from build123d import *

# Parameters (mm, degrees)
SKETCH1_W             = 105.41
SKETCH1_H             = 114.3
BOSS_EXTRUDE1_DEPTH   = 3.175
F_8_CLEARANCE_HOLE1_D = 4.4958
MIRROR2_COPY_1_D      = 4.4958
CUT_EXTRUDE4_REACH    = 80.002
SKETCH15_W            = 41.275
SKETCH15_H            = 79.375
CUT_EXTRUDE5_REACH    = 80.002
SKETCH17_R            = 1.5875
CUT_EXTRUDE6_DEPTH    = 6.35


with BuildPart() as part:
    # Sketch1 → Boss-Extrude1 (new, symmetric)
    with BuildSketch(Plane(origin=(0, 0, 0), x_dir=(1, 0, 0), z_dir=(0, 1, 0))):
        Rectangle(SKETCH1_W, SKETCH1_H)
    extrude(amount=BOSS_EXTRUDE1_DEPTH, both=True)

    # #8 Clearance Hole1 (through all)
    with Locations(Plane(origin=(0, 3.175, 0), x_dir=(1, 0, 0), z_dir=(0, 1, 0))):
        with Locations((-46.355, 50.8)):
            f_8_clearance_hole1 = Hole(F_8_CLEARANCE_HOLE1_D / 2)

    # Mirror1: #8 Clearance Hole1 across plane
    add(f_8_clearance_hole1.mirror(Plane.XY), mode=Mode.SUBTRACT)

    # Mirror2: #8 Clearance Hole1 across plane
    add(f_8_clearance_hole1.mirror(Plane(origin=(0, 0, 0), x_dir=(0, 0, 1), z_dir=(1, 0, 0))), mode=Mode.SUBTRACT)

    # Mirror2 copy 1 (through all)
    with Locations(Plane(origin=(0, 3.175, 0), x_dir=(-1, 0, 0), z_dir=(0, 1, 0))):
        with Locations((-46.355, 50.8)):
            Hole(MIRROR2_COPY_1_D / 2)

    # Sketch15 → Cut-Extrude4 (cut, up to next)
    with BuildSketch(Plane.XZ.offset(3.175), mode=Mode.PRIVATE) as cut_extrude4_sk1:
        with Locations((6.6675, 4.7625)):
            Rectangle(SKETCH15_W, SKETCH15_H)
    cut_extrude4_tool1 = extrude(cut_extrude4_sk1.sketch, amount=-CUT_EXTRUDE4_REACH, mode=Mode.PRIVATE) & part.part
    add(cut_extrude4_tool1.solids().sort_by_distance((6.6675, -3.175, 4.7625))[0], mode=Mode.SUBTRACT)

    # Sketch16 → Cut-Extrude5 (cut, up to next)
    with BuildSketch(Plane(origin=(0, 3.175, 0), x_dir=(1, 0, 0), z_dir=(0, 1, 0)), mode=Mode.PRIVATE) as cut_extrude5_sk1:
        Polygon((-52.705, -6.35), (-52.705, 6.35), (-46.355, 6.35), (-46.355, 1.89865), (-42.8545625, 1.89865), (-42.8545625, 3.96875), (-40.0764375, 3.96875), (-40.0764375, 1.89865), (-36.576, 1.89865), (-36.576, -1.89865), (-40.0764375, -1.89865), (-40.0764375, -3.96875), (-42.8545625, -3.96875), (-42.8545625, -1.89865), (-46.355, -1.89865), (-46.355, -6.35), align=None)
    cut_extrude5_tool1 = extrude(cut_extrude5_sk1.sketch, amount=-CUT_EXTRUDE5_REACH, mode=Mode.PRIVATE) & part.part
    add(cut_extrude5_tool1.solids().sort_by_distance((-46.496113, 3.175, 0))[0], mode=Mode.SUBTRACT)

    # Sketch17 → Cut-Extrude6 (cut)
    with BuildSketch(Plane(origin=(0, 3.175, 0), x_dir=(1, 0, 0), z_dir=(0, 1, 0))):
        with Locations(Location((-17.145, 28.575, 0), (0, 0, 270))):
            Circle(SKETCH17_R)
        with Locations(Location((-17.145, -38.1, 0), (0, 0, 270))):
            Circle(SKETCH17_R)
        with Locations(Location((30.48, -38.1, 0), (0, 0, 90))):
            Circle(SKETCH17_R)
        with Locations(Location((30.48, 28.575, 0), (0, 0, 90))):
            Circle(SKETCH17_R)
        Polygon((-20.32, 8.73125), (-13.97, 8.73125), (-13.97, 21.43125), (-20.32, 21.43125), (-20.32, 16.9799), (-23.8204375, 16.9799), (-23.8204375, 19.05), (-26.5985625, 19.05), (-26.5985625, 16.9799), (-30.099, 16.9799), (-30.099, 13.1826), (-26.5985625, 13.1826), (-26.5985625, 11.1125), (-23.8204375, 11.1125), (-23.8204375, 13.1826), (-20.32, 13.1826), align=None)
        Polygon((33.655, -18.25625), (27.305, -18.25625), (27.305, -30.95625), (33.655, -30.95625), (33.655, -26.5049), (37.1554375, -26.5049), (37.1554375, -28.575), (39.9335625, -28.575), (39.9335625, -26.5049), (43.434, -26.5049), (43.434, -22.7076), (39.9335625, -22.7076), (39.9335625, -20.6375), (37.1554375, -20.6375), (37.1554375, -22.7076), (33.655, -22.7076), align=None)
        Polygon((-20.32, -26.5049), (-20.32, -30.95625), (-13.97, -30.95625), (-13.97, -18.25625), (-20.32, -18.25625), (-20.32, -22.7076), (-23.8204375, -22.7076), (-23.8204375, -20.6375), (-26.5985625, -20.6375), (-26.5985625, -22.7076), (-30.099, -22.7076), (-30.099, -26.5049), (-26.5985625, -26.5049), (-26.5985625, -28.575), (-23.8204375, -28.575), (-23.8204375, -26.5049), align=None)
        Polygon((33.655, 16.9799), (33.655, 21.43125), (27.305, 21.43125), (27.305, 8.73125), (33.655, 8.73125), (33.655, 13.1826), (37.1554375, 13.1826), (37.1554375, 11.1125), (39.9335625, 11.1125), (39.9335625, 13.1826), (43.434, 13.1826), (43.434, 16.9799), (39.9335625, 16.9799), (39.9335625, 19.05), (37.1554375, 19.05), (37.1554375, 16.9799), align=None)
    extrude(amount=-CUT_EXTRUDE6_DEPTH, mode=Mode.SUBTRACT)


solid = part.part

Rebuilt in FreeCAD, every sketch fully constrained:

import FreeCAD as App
import Part
import Sketcher
from FreeCAD import Vector
Q = App.Units.Quantity

doc = App.newDocument("Part")
body = doc.addObject("PartDesign::Body", "Body")

sketch1 = doc.addObject("Sketcher::SketchObject", "Sketch")
body.addObject(sketch1)
sketch1.AttachmentSupport = (doc.XZ_Plane, [""])
sketch1.MapMode = "FlatFace"
sketch1.addGeometry(Part.LineSegment(Vector(-53, -57, 0), Vector(-53, 57, 0)), False)
sketch1.addGeometry(Part.LineSegment(Vector(-53, 57, 0), Vector(53, 57, 0)), False)
sketch1.addGeometry(Part.LineSegment(Vector(53, 57, 0), Vector(53, -57, 0)), False)
sketch1.addGeometry(Part.LineSegment(Vector(53, -57, 0), Vector(-53, -57, 0)), False)
sketch1.addConstraint(Sketcher.Constraint("Coincident", 0, 2, 1, 1))
sketch1.addConstraint(Sketcher.Constraint("Coincident", 1, 2, 2, 1))
sketch1.addConstraint(Sketcher.Constraint("Coincident", 2, 2, 3, 1))
sketch1.addConstraint(Sketcher.Constraint("Coincident", 3, 2, 0, 1))
sketch1.addConstraint(Sketcher.Constraint("Vertical", 0))
sketch1.addConstraint(Sketcher.Constraint("Horizontal", 1))
sketch1.addConstraint(Sketcher.Constraint("Vertical", 2))
sketch1.addConstraint(Sketcher.Constraint("Horizontal", 3))
sketch1.addConstraint(Sketcher.Constraint("Symmetric", 0, 2, 2, 2, -1, 1))
sketch1.addConstraint(Sketcher.Constraint("DistanceY", 0, 1, 0, 2, Q("4.5 in")))
sketch1.addConstraint(Sketcher.Constraint("DistanceX", 1, 1, 1, 2, Q("4.15 in")))
pad1 = doc.addObject("PartDesign::Pad", "Pad")
body.addObject(pad1)
pad1.Profile = sketch1
pad1.Length = Q("0.25 in")
pad1.Midplane = True

sketch2 = doc.addObject("Sketcher::SketchObject", "Sketch001")
body.addObject(sketch2)
sketch2.AttachmentSupport = (doc.XZ_Plane, [""])
sketch2.MapMode = "FlatFace"
sketch2.AttachmentOffset = App.Placement(Vector(0, 0, -0.125 * 25.4), App.Rotation())
sketch2.addGeometry(Part.Circle(Vector(-46.4, -50.8, 0), Vector(0, 0, 1), 2.2), False)
sketch2.addConstraint(Sketcher.Constraint("Diameter", 0, Q("0.177 in")))
sketch2.addConstraint(Sketcher.Constraint("DistanceY", 0, 3, -1, 1, Q("2 in")))
sketch2.addConstraint(Sketcher.Constraint("DistanceX", 0, 3, -1, 1, Q("1.825 in")))
doc.recompute()
hole = doc.addObject("PartDesign::Hole", "Hole")
body.addObject(hole)
hole.Profile = sketch2
hole.ThreadType = "None"
hole.Diameter = Q("0.177 in")
hole.DepthType = "ThroughAll"
hole.Reversed = True
doc.recompute()

mirrored = doc.addObject("PartDesign::Mirrored", "Mirrored")
body.addObject(mirrored)
mirrored.Originals = [hole]
mirrored.MirrorPlane = (doc.XY_Plane, [""])
body.Tip = mirrored
doc.recompute()

mirrored2 = doc.addObject("PartDesign::Mirrored", "Mirrored001")
body.addObject(mirrored2)
mirrored2.Originals = [hole]
mirrored2.MirrorPlane = (doc.YZ_Plane, [""])
body.Tip = mirrored2

sketch3 = doc.addObject("Sketcher::SketchObject", "Sketch002")
body.addObject(sketch3)
sketch3.AttachmentSupport = (doc.XZ_Plane, [""])
sketch3.MapMode = "FlatFace"
sketch3.AttachmentOffset = App.Placement(Vector(0, 0, -0.125 * 25.4), App.Rotation())
sketch3.addGeometry(Part.Circle(Vector(46.4, 50.8, 0), Vector(0, 0, 1), 2.2), False)
sketch3.addConstraint(Sketcher.Constraint("Diameter", 0, Q("0.177 in")))
sketch3.addConstraint(Sketcher.Constraint("DistanceY", -1, 1, 0, 3, Q("2 in")))
sketch3.addConstraint(Sketcher.Constraint("DistanceX", -1, 1, 0, 3, Q("1.825 in")))
doc.recompute()
hole2 = doc.addObject("PartDesign::Hole", "Hole001")
body.addObject(hole2)
hole2.Profile = sketch3
hole2.ThreadType = "None"
hole2.Diameter = Q("0.177 in")
hole2.DepthType = "ThroughAll"
hole2.Reversed = True

sketch4 = doc.addObject("Sketcher::SketchObject", "Sketch003")
body.addObject(sketch4)
sketch4.AttachmentSupport = (doc.XZ_Plane, [""])
sketch4.MapMode = "FlatFace"
sketch4.AttachmentOffset = App.Placement(Vector(0, 0, 0.125 * 25.4), App.Rotation())
sketch4.addGeometry(Part.LineSegment(Vector(-14, 44, 0), Vector(-14, -35, 0)), False)
sketch4.addGeometry(Part.LineSegment(Vector(-14, -35, 0), Vector(27, -35, 0)), False)
sketch4.addGeometry(Part.LineSegment(Vector(27, -35, 0), Vector(27, 44, 0)), False)
sketch4.addGeometry(Part.LineSegment(Vector(27, 44, 0), Vector(-14, 44, 0)), False)
sketch4.addConstraint(Sketcher.Constraint("Coincident", 0, 2, 1, 1))
sketch4.addConstraint(Sketcher.Constraint("Coincident", 1, 2, 2, 1))
sketch4.addConstraint(Sketcher.Constraint("Coincident", 2, 2, 3, 1))
sketch4.addConstraint(Sketcher.Constraint("Coincident", 3, 2, 0, 1))
sketch4.addConstraint(Sketcher.Constraint("Vertical", 0))
sketch4.addConstraint(Sketcher.Constraint("Horizontal", 1))
sketch4.addConstraint(Sketcher.Constraint("Vertical", 2))
sketch4.addConstraint(Sketcher.Constraint("Horizontal", 3))
sketch4.addConstraint(Sketcher.Constraint("DistanceX", 1, 1, 1, 2, Q("1.625 in")))
sketch4.addConstraint(Sketcher.Constraint("DistanceY", 0, 2, 0, 1, Q("3.125 in")))
sketch4.addConstraint(Sketcher.Constraint("DistanceX", 0, 2, -1, 1, Q("0.55 in")))
sketch4.addConstraint(Sketcher.Constraint("DistanceY", -1, 1, 2, 2, Q("1.75 in")))
pocket1 = doc.addObject("PartDesign::Pocket", "Pocket")
body.addObject(pocket1)
pocket1.Profile = sketch4
pocket1.Type = "UpToFirst"

sketch5 = doc.addObject("Sketcher::SketchObject", "Sketch004")
body.addObject(sketch5)
sketch5.AttachmentSupport = (doc.XZ_Plane, [""])
sketch5.MapMode = "FlatFace"
sketch5.AttachmentOffset = App.Placement(Vector(0, 0, -0.125 * 25.4), App.Rotation())
sketch5.addGeometry(Part.LineSegment(Vector(-52.7, -6.3, 0), Vector(-52.7, 6.3, 0)), False)
sketch5.addGeometry(Part.LineSegment(Vector(-52.7, 6.3, 0), Vector(-46.4, 6.3, 0)), False)
sketch5.addGeometry(Part.LineSegment(Vector(-46.4, 6.3, 0), Vector(-46.4, 1.9, 0)), False)
sketch5.addGeometry(Part.LineSegment(Vector(-46.4, 1.9, 0), Vector(-42.9, 1.9, 0)), False)
sketch5.addGeometry(Part.LineSegment(Vector(-42.9, 1.9, 0), Vector(-42.9, 4, 0)), False)
sketch5.addGeometry(Part.LineSegment(Vector(-42.9, 4, 0), Vector(-40.1, 4, 0)), False)
sketch5.addGeometry(Part.LineSegment(Vector(-40.1, 4, 0), Vector(-40.1, 1.9, 0)), False)
sketch5.addGeometry(Part.LineSegment(Vector(-40.1, 1.9, 0), Vector(-36.6, 1.9, 0)), False)
sketch5.addGeometry(Part.LineSegment(Vector(-36.6, 1.9, 0), Vector(-36.6, -1.9, 0)), False)
sketch5.addGeometry(Part.LineSegment(Vector(-36.6, -1.9, 0), Vector(-40.1, -1.9, 0)), False)
sketch5.addGeometry(Part.LineSegment(Vector(-40.1, -1.9, 0), Vector(-40.1, -4, 0)), False)
sketch5.addGeometry(Part.LineSegment(Vector(-40.1, -4, 0), Vector(-42.9, -4, 0)), False)
sketch5.addGeometry(Part.LineSegment(Vector(-42.9, -4, 0), Vector(-42.9, -1.9, 0)), False)
sketch5.addGeometry(Part.LineSegment(Vector(-42.9, -1.9, 0), Vector(-46.4, -1.9, 0)), False)
sketch5.addGeometry(Part.LineSegment(Vector(-46.4, -1.9, 0), Vector(-46.4, -6.3, 0)), False)
sketch5.addGeometry(Part.LineSegment(Vector(-46.4, -6.3, 0), Vector(-52.7, -6.3, 0)), False)
sketch5.addConstraint(Sketcher.Constraint("Coincident", 0, 2, 1, 1))
sketch5.addConstraint(Sketcher.Constraint("Coincident", 1, 2, 2, 1))
sketch5.addConstraint(Sketcher.Constraint("Coincident", 2, 2, 3, 1))
sketch5.addConstraint(Sketcher.Constraint("Coincident", 3, 2, 4, 1))
sketch5.addConstraint(Sketcher.Constraint("Coincident", 4, 2, 5, 1))
sketch5.addConstraint(Sketcher.Constraint("Coincident", 5, 2, 6, 1))
sketch5.addConstraint(Sketcher.Constraint("Coincident", 6, 2, 7, 1))
sketch5.addConstraint(Sketcher.Constraint("Coincident", 7, 2, 8, 1))
sketch5.addConstraint(Sketcher.Constraint("Coincident", 8, 2, 9, 1))
sketch5.addConstraint(Sketcher.Constraint("Coincident", 9, 2, 10, 1))
sketch5.addConstraint(Sketcher.Constraint("Coincident", 10, 2, 11, 1))
sketch5.addConstraint(Sketcher.Constraint("Coincident", 11, 2, 12, 1))
sketch5.addConstraint(Sketcher.Constraint("Coincident", 12, 2, 13, 1))
sketch5.addConstraint(Sketcher.Constraint("Coincident", 13, 2, 14, 1))
sketch5.addConstraint(Sketcher.Constraint("Coincident", 14, 2, 15, 1))
sketch5.addConstraint(Sketcher.Constraint("Coincident", 15, 2, 0, 1))
sketch5.addConstraint(Sketcher.Constraint("Vertical", 0))
sketch5.addConstraint(Sketcher.Constraint("Horizontal", 1))
sketch5.addConstraint(Sketcher.Constraint("Vertical", 2))
sketch5.addConstraint(Sketcher.Constraint("Horizontal", 3))
sketch5.addConstraint(Sketcher.Constraint("Vertical", 4))
sketch5.addConstraint(Sketcher.Constraint("Horizontal", 5))
sketch5.addConstraint(Sketcher.Constraint("Vertical", 6))
sketch5.addConstraint(Sketcher.Constraint("Horizontal", 7))
sketch5.addConstraint(Sketcher.Constraint("Vertical", 8))
sketch5.addConstraint(Sketcher.Constraint("Horizontal", 9))
sketch5.addConstraint(Sketcher.Constraint("Vertical", 10))
sketch5.addConstraint(Sketcher.Constraint("Horizontal", 11))
sketch5.addConstraint(Sketcher.Constraint("Vertical", 12))
sketch5.addConstraint(Sketcher.Constraint("Horizontal", 13))
sketch5.addConstraint(Sketcher.Constraint("Vertical", 14))
sketch5.addConstraint(Sketcher.Constraint("Horizontal", 15))
sketch5.addConstraint(Sketcher.Constraint("Symmetric", 6, 2, 9, 2, -1))
sketch5.addConstraint(Sketcher.Constraint("Symmetric", 4, 2, 11, 2, -1))
sketch5.addConstraint(Sketcher.Constraint("Symmetric", 2, 2, 13, 2, -1))
sketch5.addConstraint(Sketcher.Constraint("Horizontal", 3, 2, 6, 2))
sketch5.addConstraint(Sketcher.Constraint("Equal", 3, 7))
sketch5.addConstraint(Sketcher.Constraint("Equal", 2, 14))
sketch5.addConstraint(Sketcher.Constraint("DistanceY", 0, 1, 0, 2, Q("0.5 in")))
sketch5.addConstraint(Sketcher.Constraint("DistanceX", 1, 1, 1, 2, Q("0.25 in")))
sketch5.addConstraint(Sketcher.Constraint("DistanceX", 5, 1, 5, 2, Q("0.109375 in")))
sketch5.addConstraint(Sketcher.Constraint("DistanceX", 7, 2, -1, 1, Q("1.44 in")))
sketch5.addConstraint(Sketcher.Constraint("DistanceY", 4, 1, 4, 2, Q("0.0815 in")))
sketch5.addConstraint(Sketcher.Constraint("DistanceY", 8, 2, 8, 1, Q("0.1495 in")))
sketch5.addConstraint(Sketcher.Constraint("DistanceX", 0, 2, -1, 1, Q("2.075 in")))
pocket2 = doc.addObject("PartDesign::Pocket", "Pocket001")
body.addObject(pocket2)
pocket2.Profile = sketch5
pocket2.Type = "UpToFirst"
pocket2.Reversed = True

sketch6 = doc.addObject("Sketcher::SketchObject", "Sketch005")
body.addObject(sketch6)
sketch6.AttachmentSupport = (doc.XZ_Plane, [""])
sketch6.MapMode = "FlatFace"
sketch6.AttachmentOffset = App.Placement(Vector(0, 0, -0.125 * 25.4), App.Rotation())
sketch6.addGeometry(Part.Circle(Vector(-17.1, -28.6, 0), Vector(0, 0, 1), 1.6), False)
sketch6.addGeometry(Part.Circle(Vector(-17.1, 38.1, 0), Vector(0, 0, 1), 1.6), False)
sketch6.addGeometry(Part.Circle(Vector(30.5, 38.1, 0), Vector(0, 0, 1), 1.6), False)
sketch6.addGeometry(Part.Circle(Vector(30.5, -28.6, 0), Vector(0, 0, 1), 1.6), False)
sketch6.addGeometry(Part.LineSegment(Vector(-20.3, -8.7, 0), Vector(-14, -8.7, 0)), False)
sketch6.addGeometry(Part.LineSegment(Vector(-14, -8.7, 0), Vector(-14, -21.4, 0)), False)
sketch6.addGeometry(Part.LineSegment(Vector(-14, -21.4, 0), Vector(-20.3, -21.4, 0)), False)
sketch6.addGeometry(Part.LineSegment(Vector(-20.3, -21.4, 0), Vector(-20.3, -17, 0)), False)
sketch6.addGeometry(Part.LineSegment(Vector(-20.3, -17, 0), Vector(-23.8, -17, 0)), False)
sketch6.addGeometry(Part.LineSegment(Vector(-23.8, -17, 0), Vector(-23.8, -19.1, 0)), False)
sketch6.addGeometry(Part.LineSegment(Vector(-23.8, -19.1, 0), Vector(-26.6, -19.1, 0)), False)
sketch6.addGeometry(Part.LineSegment(Vector(-26.6, -19.1, 0), Vector(-26.6, -17, 0)), False)
sketch6.addGeometry(Part.LineSegment(Vector(-26.6, -17, 0), Vector(-30.1, -17, 0)), False)
sketch6.addGeometry(Part.LineSegment(Vector(-30.1, -17, 0), Vector(-30.1, -13.2, 0)), False)
sketch6.addGeometry(Part.LineSegment(Vector(-30.1, -13.2, 0), Vector(-26.6, -13.2, 0)), False)
sketch6.addGeometry(Part.LineSegment(Vector(-26.6, -13.2, 0), Vector(-26.6, -11.1, 0)), False)
sketch6.addGeometry(Part.LineSegment(Vector(-26.6, -11.1, 0), Vector(-23.8, -11.1, 0)), False)
sketch6.addGeometry(Part.LineSegment(Vector(-23.8, -11.1, 0), Vector(-23.8, -13.2, 0)), False)
sketch6.addGeometry(Part.LineSegment(Vector(-23.8, -13.2, 0), Vector(-20.3, -13.2, 0)), False)
sketch6.addGeometry(Part.LineSegment(Vector(-20.3, -13.2, 0), Vector(-20.3, -8.7, 0)), False)
sketch6.addGeometry(Part.LineSegment(Vector(33.7, 18.3, 0), Vector(27.3, 18.3, 0)), False)
sketch6.addGeometry(Part.LineSegment(Vector(27.3, 18.3, 0), Vector(27.3, 31, 0)), False)
sketch6.addGeometry(Part.LineSegment(Vector(27.3, 31, 0), Vector(33.7, 31, 0)), False)
sketch6.addGeometry(Part.LineSegment(Vector(33.7, 31, 0), Vector(33.7, 26.5, 0)), False)
sketch6.addGeometry(Part.LineSegment(Vector(33.7, 26.5, 0), Vector(37.2, 26.5, 0)), False)
sketch6.addGeometry(Part.LineSegment(Vector(37.2, 26.5, 0), Vector(37.2, 28.6, 0)), False)
sketch6.addGeometry(Part.LineSegment(Vector(37.2, 28.6, 0), Vector(39.9, 28.6, 0)), False)
sketch6.addGeometry(Part.LineSegment(Vector(39.9, 28.6, 0), Vector(39.9, 26.5, 0)), False)
sketch6.addGeometry(Part.LineSegment(Vector(39.9, 26.5, 0), Vector(43.4, 26.5, 0)), False)
sketch6.addGeometry(Part.LineSegment(Vector(43.4, 26.5, 0), Vector(43.4, 22.7, 0)), False)
sketch6.addGeometry(Part.LineSegment(Vector(43.4, 22.7, 0), Vector(39.9, 22.7, 0)), False)
sketch6.addGeometry(Part.LineSegment(Vector(39.9, 22.7, 0), Vector(39.9, 20.6, 0)), False)
sketch6.addGeometry(Part.LineSegment(Vector(39.9, 20.6, 0), Vector(37.2, 20.6, 0)), False)
sketch6.addGeometry(Part.LineSegment(Vector(37.2, 20.6, 0), Vector(37.2, 22.7, 0)), False)
sketch6.addGeometry(Part.LineSegment(Vector(37.2, 22.7, 0), Vector(33.7, 22.7, 0)), False)
sketch6.addGeometry(Part.LineSegment(Vector(33.7, 22.7, 0), Vector(33.7, 18.3, 0)), False)
sketch6.addGeometry(Part.LineSegment(Vector(-20.3, 26.5, 0), Vector(-20.3, 31, 0)), False)
sketch6.addGeometry(Part.LineSegment(Vector(-20.3, 31, 0), Vector(-14, 31, 0)), False)
sketch6.addGeometry(Part.LineSegment(Vector(-14, 31, 0), Vector(-14, 18.3, 0)), False)
sketch6.addGeometry(Part.LineSegment(Vector(-14, 18.3, 0), Vector(-20.3, 18.3, 0)), False)
sketch6.addGeometry(Part.LineSegment(Vector(-20.3, 18.3, 0), Vector(-20.3, 22.7, 0)), False)
sketch6.addGeometry(Part.LineSegment(Vector(-20.3, 22.7, 0), Vector(-23.8, 22.7, 0)), False)
sketch6.addGeometry(Part.LineSegment(Vector(-23.8, 22.7, 0), Vector(-23.8, 20.6, 0)), False)
sketch6.addGeometry(Part.LineSegment(Vector(-23.8, 20.6, 0), Vector(-26.6, 20.6, 0)), False)
sketch6.addGeometry(Part.LineSegment(Vector(-26.6, 20.6, 0), Vector(-26.6, 22.7, 0)), False)
sketch6.addGeometry(Part.LineSegment(Vector(-26.6, 22.7, 0), Vector(-30.1, 22.7, 0)), False)
sketch6.addGeometry(Part.LineSegment(Vector(-30.1, 22.7, 0), Vector(-30.1, 26.5, 0)), False)
sketch6.addGeometry(Part.LineSegment(Vector(-30.1, 26.5, 0), Vector(-26.6, 26.5, 0)), False)
sketch6.addGeometry(Part.LineSegment(Vector(-26.6, 26.5, 0), Vector(-26.6, 28.6, 0)), False)
sketch6.addGeometry(Part.LineSegment(Vector(-26.6, 28.6, 0), Vector(-23.8, 28.6, 0)), False)
sketch6.addGeometry(Part.LineSegment(Vector(-23.8, 28.6, 0), Vector(-23.8, 26.5, 0)), False)
sketch6.addGeometry(Part.LineSegment(Vector(-23.8, 26.5, 0), Vector(-20.3, 26.5, 0)), False)
sketch6.addGeometry(Part.LineSegment(Vector(33.7, -17, 0), Vector(33.7, -21.4, 0)), False)
sketch6.addGeometry(Part.LineSegment(Vector(33.7, -21.4, 0), Vector(27.3, -21.4, 0)), False)
sketch6.addGeometry(Part.LineSegment(Vector(27.3, -21.4, 0), Vector(27.3, -8.7, 0)), False)
sketch6.addGeometry(Part.LineSegment(Vector(27.3, -8.7, 0), Vector(33.7, -8.7, 0)), False)
sketch6.addGeometry(Part.LineSegment(Vector(33.7, -8.7, 0), Vector(33.7, -13.2, 0)), False)
sketch6.addGeometry(Part.LineSegment(Vector(33.7, -13.2, 0), Vector(37.2, -13.2, 0)), False)
sketch6.addGeometry(Part.LineSegment(Vector(37.2, -13.2, 0), Vector(37.2, -11.1, 0)), False)
sketch6.addGeometry(Part.LineSegment(Vector(37.2, -11.1, 0), Vector(39.9, -11.1, 0)), False)
sketch6.addGeometry(Part.LineSegment(Vector(39.9, -11.1, 0), Vector(39.9, -13.2, 0)), False)
sketch6.addGeometry(Part.LineSegment(Vector(39.9, -13.2, 0), Vector(43.4, -13.2, 0)), False)
sketch6.addGeometry(Part.LineSegment(Vector(43.4, -13.2, 0), Vector(43.4, -17, 0)), False)
sketch6.addGeometry(Part.LineSegment(Vector(43.4, -17, 0), Vector(39.9, -17, 0)), False)
sketch6.addGeometry(Part.LineSegment(Vector(39.9, -17, 0), Vector(39.9, -19.1, 0)), False)
sketch6.addGeometry(Part.LineSegment(Vector(39.9, -19.1, 0), Vector(37.2, -19.1, 0)), False)
sketch6.addGeometry(Part.LineSegment(Vector(37.2, -19.1, 0), Vector(37.2, -17, 0)), False)
sketch6.addGeometry(Part.LineSegment(Vector(37.2, -17, 0), Vector(33.7, -17, 0)), False)
sketch6.addConstraint(Sketcher.Constraint("Coincident", 4, 2, 5, 1))
sketch6.addConstraint(Sketcher.Constraint("Coincident", 5, 2, 6, 1))
sketch6.addConstraint(Sketcher.Constraint("Coincident", 6, 2, 7, 1))
sketch6.addConstraint(Sketcher.Constraint("Coincident", 7, 2, 8, 1))
sketch6.addConstraint(Sketcher.Constraint("Coincident", 8, 2, 9, 1))
sketch6.addConstraint(Sketcher.Constraint("Coincident", 9, 2, 10, 1))
sketch6.addConstraint(Sketcher.Constraint("Coincident", 10, 2, 11, 1))
sketch6.addConstraint(Sketcher.Constraint("Coincident", 11, 2, 12, 1))
sketch6.addConstraint(Sketcher.Constraint("Coincident", 12, 2, 13, 1))
sketch6.addConstraint(Sketcher.Constraint("Coincident", 13, 2, 14, 1))
sketch6.addConstraint(Sketcher.Constraint("Coincident", 14, 2, 15, 1))
sketch6.addConstraint(Sketcher.Constraint("Coincident", 15, 2, 16, 1))
sketch6.addConstraint(Sketcher.Constraint("Coincident", 16, 2, 17, 1))
sketch6.addConstraint(Sketcher.Constraint("Coincident", 17, 2, 18, 1))
sketch6.addConstraint(Sketcher.Constraint("Coincident", 18, 2, 19, 1))
sketch6.addConstraint(Sketcher.Constraint("Coincident", 19, 2, 4, 1))
sketch6.addConstraint(Sketcher.Constraint("Coincident", 20, 2, 21, 1))
sketch6.addConstraint(Sketcher.Constraint("Coincident", 21, 2, 22, 1))
sketch6.addConstraint(Sketcher.Constraint("Coincident", 22, 2, 23, 1))
sketch6.addConstraint(Sketcher.Constraint("Coincident", 23, 2, 24, 1))
sketch6.addConstraint(Sketcher.Constraint("Coincident", 24, 2, 25, 1))
sketch6.addConstraint(Sketcher.Constraint("Coincident", 25, 2, 26, 1))
sketch6.addConstraint(Sketcher.Constraint("Coincident", 26, 2, 27, 1))
sketch6.addConstraint(Sketcher.Constraint("Coincident", 27, 2, 28, 1))
sketch6.addConstraint(Sketcher.Constraint("Coincident", 28, 2, 29, 1))
sketch6.addConstraint(Sketcher.Constraint("Coincident", 29, 2, 30, 1))
sketch6.addConstraint(Sketcher.Constraint("Coincident", 30, 2, 31, 1))
sketch6.addConstraint(Sketcher.Constraint("Coincident", 31, 2, 32, 1))
sketch6.addConstraint(Sketcher.Constraint("Coincident", 32, 2, 33, 1))
sketch6.addConstraint(Sketcher.Constraint("Coincident", 33, 2, 34, 1))
sketch6.addConstraint(Sketcher.Constraint("Coincident", 34, 2, 35, 1))
sketch6.addConstraint(Sketcher.Constraint("Coincident", 35, 2, 20, 1))
sketch6.addConstraint(Sketcher.Constraint("Coincident", 36, 2, 37, 1))
sketch6.addConstraint(Sketcher.Constraint("Coincident", 37, 2, 38, 1))
sketch6.addConstraint(Sketcher.Constraint("Coincident", 38, 2, 39, 1))
sketch6.addConstraint(Sketcher.Constraint("Coincident", 39, 2, 40, 1))
sketch6.addConstraint(Sketcher.Constraint("Coincident", 40, 2, 41, 1))
sketch6.addConstraint(Sketcher.Constraint("Coincident", 41, 2, 42, 1))
sketch6.addConstraint(Sketcher.Constraint("Coincident", 42, 2, 43, 1))
sketch6.addConstraint(Sketcher.Constraint("Coincident", 43, 2, 44, 1))
sketch6.addConstraint(Sketcher.Constraint("Coincident", 44, 2, 45, 1))
sketch6.addConstraint(Sketcher.Constraint("Coincident", 45, 2, 46, 1))
sketch6.addConstraint(Sketcher.Constraint("Coincident", 46, 2, 47, 1))
sketch6.addConstraint(Sketcher.Constraint("Coincident", 47, 2, 48, 1))
sketch6.addConstraint(Sketcher.Constraint("Coincident", 48, 2, 49, 1))
sketch6.addConstraint(Sketcher.Constraint("Coincident", 49, 2, 50, 1))
sketch6.addConstraint(Sketcher.Constraint("Coincident", 50, 2, 51, 1))
sketch6.addConstraint(Sketcher.Constraint("Coincident", 51, 2, 36, 1))
sketch6.addConstraint(Sketcher.Constraint("Coincident", 52, 2, 53, 1))
sketch6.addConstraint(Sketcher.Constraint("Coincident", 53, 2, 54, 1))
sketch6.addConstraint(Sketcher.Constraint("Coincident", 54, 2, 55, 1))
sketch6.addConstraint(Sketcher.Constraint("Coincident", 55, 2, 56, 1))
sketch6.addConstraint(Sketcher.Constraint("Coincident", 56, 2, 57, 1))
sketch6.addConstraint(Sketcher.Constraint("Coincident", 57, 2, 58, 1))
sketch6.addConstraint(Sketcher.Constraint("Coincident", 58, 2, 59, 1))
sketch6.addConstraint(Sketcher.Constraint("Coincident", 59, 2, 60, 1))
sketch6.addConstraint(Sketcher.Constraint("Coincident", 60, 2, 61, 1))
sketch6.addConstraint(Sketcher.Constraint("Coincident", 61, 2, 62, 1))
sketch6.addConstraint(Sketcher.Constraint("Coincident", 62, 2, 63, 1))
sketch6.addConstraint(Sketcher.Constraint("Coincident", 63, 2, 64, 1))
sketch6.addConstraint(Sketcher.Constraint("Coincident", 64, 2, 65, 1))
sketch6.addConstraint(Sketcher.Constraint("Coincident", 65, 2, 66, 1))
sketch6.addConstraint(Sketcher.Constraint("Coincident", 66, 2, 67, 1))
sketch6.addConstraint(Sketcher.Constraint("Coincident", 67, 2, 52, 1))
sketch6.addConstraint(Sketcher.Constraint("Horizontal", 4))
sketch6.addConstraint(Sketcher.Constraint("Vertical", 5))
sketch6.addConstraint(Sketcher.Constraint("Horizontal", 6))
sketch6.addConstraint(Sketcher.Constraint("Vertical", 7))
sketch6.addConstraint(Sketcher.Constraint("Horizontal", 8))
sketch6.addConstraint(Sketcher.Constraint("Vertical", 9))
sketch6.addConstraint(Sketcher.Constraint("Horizontal", 10))
sketch6.addConstraint(Sketcher.Constraint("Vertical", 11))
sketch6.addConstraint(Sketcher.Constraint("Horizontal", 12))
sketch6.addConstraint(Sketcher.Constraint("Vertical", 13))
sketch6.addConstraint(Sketcher.Constraint("Horizontal", 14))
sketch6.addConstraint(Sketcher.Constraint("Vertical", 15))
sketch6.addConstraint(Sketcher.Constraint("Horizontal", 16))
sketch6.addConstraint(Sketcher.Constraint("Vertical", 17))
sketch6.addConstraint(Sketcher.Constraint("Horizontal", 18))
sketch6.addConstraint(Sketcher.Constraint("Vertical", 19))
sketch6.addConstraint(Sketcher.Constraint("Horizontal", 20))
sketch6.addConstraint(Sketcher.Constraint("Vertical", 21))
sketch6.addConstraint(Sketcher.Constraint("Horizontal", 22))
sketch6.addConstraint(Sketcher.Constraint("Vertical", 23))
sketch6.addConstraint(Sketcher.Constraint("Horizontal", 24))
sketch6.addConstraint(Sketcher.Constraint("Vertical", 25))
sketch6.addConstraint(Sketcher.Constraint("Horizontal", 26))
sketch6.addConstraint(Sketcher.Constraint("Vertical", 27))
sketch6.addConstraint(Sketcher.Constraint("Horizontal", 28))
sketch6.addConstraint(Sketcher.Constraint("Vertical", 29))
sketch6.addConstraint(Sketcher.Constraint("Horizontal", 30))
sketch6.addConstraint(Sketcher.Constraint("Vertical", 31))
sketch6.addConstraint(Sketcher.Constraint("Horizontal", 32))
sketch6.addConstraint(Sketcher.Constraint("Vertical", 33))
sketch6.addConstraint(Sketcher.Constraint("Horizontal", 34))
sketch6.addConstraint(Sketcher.Constraint("Vertical", 35))
sketch6.addConstraint(Sketcher.Constraint("Vertical", 36))
sketch6.addConstraint(Sketcher.Constraint("Horizontal", 37))
sketch6.addConstraint(Sketcher.Constraint("Vertical", 38))
sketch6.addConstraint(Sketcher.Constraint("Horizontal", 39))
sketch6.addConstraint(Sketcher.Constraint("Vertical", 40))
sketch6.addConstraint(Sketcher.Constraint("Horizontal", 41))
sketch6.addConstraint(Sketcher.Constraint("Vertical", 42))
sketch6.addConstraint(Sketcher.Constraint("Horizontal", 43))
sketch6.addConstraint(Sketcher.Constraint("Vertical", 44))
sketch6.addConstraint(Sketcher.Constraint("Horizontal", 45))
sketch6.addConstraint(Sketcher.Constraint("Vertical", 46))
sketch6.addConstraint(Sketcher.Constraint("Horizontal", 47))
sketch6.addConstraint(Sketcher.Constraint("Vertical", 48))
sketch6.addConstraint(Sketcher.Constraint("Horizontal", 49))
sketch6.addConstraint(Sketcher.Constraint("Vertical", 50))
sketch6.addConstraint(Sketcher.Constraint("Horizontal", 51))
sketch6.addConstraint(Sketcher.Constraint("Vertical", 52))
sketch6.addConstraint(Sketcher.Constraint("Horizontal", 53))
sketch6.addConstraint(Sketcher.Constraint("Vertical", 54))
sketch6.addConstraint(Sketcher.Constraint("Horizontal", 55))
sketch6.addConstraint(Sketcher.Constraint("Vertical", 56))
sketch6.addConstraint(Sketcher.Constraint("Horizontal", 57))
sketch6.addConstraint(Sketcher.Constraint("Vertical", 58))
sketch6.addConstraint(Sketcher.Constraint("Horizontal", 59))
sketch6.addConstraint(Sketcher.Constraint("Vertical", 60))
sketch6.addConstraint(Sketcher.Constraint("Horizontal", 61))
sketch6.addConstraint(Sketcher.Constraint("Vertical", 62))
sketch6.addConstraint(Sketcher.Constraint("Horizontal", 63))
sketch6.addConstraint(Sketcher.Constraint("Vertical", 64))
sketch6.addConstraint(Sketcher.Constraint("Horizontal", 65))
sketch6.addConstraint(Sketcher.Constraint("Vertical", 66))
sketch6.addConstraint(Sketcher.Constraint("Horizontal", 67))
sketch6.addConstraint(Sketcher.Constraint("Equal", 0, 1))
sketch6.addConstraint(Sketcher.Constraint("Equal", 1, 2))
sketch6.addConstraint(Sketcher.Constraint("Equal", 2, 3))
sketch6.addConstraint(Sketcher.Constraint("Horizontal", 1, 3, 2, 3))
sketch6.addConstraint(Sketcher.Constraint("Horizontal", 0, 3, 3, 3))
sketch6.addConstraint(Sketcher.Constraint("Horizontal", 8, 2, 11, 2))
sketch6.addConstraint(Sketcher.Constraint("Horizontal", 14, 2, 17, 2))
sketch6.addConstraint(Sketcher.Constraint("Horizontal", 24, 2, 27, 2))
sketch6.addConstraint(Sketcher.Constraint("Horizontal", 30, 2, 33, 2))
sketch6.addConstraint(Sketcher.Constraint("Horizontal", 22, 2, 36, 2))
sketch6.addConstraint(Sketcher.Constraint("Horizontal", 35, 2, 38, 2))
sketch6.addConstraint(Sketcher.Constraint("Horizontal", 34, 2, 40, 2))
sketch6.addConstraint(Sketcher.Constraint("Horizontal", 32, 2, 42, 2))
sketch6.addConstraint(Sketcher.Constraint("Horizontal", 41, 2, 44, 2))
sketch6.addConstraint(Sketcher.Constraint("Horizontal", 28, 2, 46, 2))
sketch6.addConstraint(Sketcher.Constraint("Horizontal", 26, 2, 48, 2))
sketch6.addConstraint(Sketcher.Constraint("Horizontal", 47, 2, 50, 2))
sketch6.addConstraint(Sketcher.Constraint("Horizontal", 6, 2, 52, 2))
sketch6.addConstraint(Sketcher.Constraint("Horizontal", 19, 2, 54, 2))
sketch6.addConstraint(Sketcher.Constraint("Horizontal", 18, 2, 56, 2))
sketch6.addConstraint(Sketcher.Constraint("Horizontal", 16, 2, 58, 2))
sketch6.addConstraint(Sketcher.Constraint("Horizontal", 57, 2, 60, 2))
sketch6.addConstraint(Sketcher.Constraint("Horizontal", 12, 2, 62, 2))
sketch6.addConstraint(Sketcher.Constraint("Horizontal", 10, 2, 64, 2))
sketch6.addConstraint(Sketcher.Constraint("Horizontal", 63, 2, 66, 2))
sketch6.addConstraint(Sketcher.Constraint("Vertical", 0, 3, 1, 3))
sketch6.addConstraint(Sketcher.Constraint("Vertical", 2, 3, 3, 3))
sketch6.addConstraint(Sketcher.Constraint("Vertical", 11, 2, 14, 2))
sketch6.addConstraint(Sketcher.Constraint("Vertical", 9, 2, 16, 2))
sketch6.addConstraint(Sketcher.Constraint("Vertical", 7, 2, 18, 2))
sketch6.addConstraint(Sketcher.Constraint("Vertical", 27, 2, 30, 2))
sketch6.addConstraint(Sketcher.Constraint("Vertical", 25, 2, 32, 2))
sketch6.addConstraint(Sketcher.Constraint("Vertical", 23, 2, 34, 2))
sketch6.addConstraint(Sketcher.Constraint("Vertical", 19, 2, 36, 2))
sketch6.addConstraint(Sketcher.Constraint("Vertical", 5, 2, 37, 2))
sketch6.addConstraint(Sketcher.Constraint("Vertical", 36, 2, 39, 2))
sketch6.addConstraint(Sketcher.Constraint("Vertical", 17, 2, 41, 2))
sketch6.addConstraint(Sketcher.Constraint("Vertical", 15, 2, 43, 2))
sketch6.addConstraint(Sketcher.Constraint("Vertical", 13, 2, 45, 2))
sketch6.addConstraint(Sketcher.Constraint("Vertical", 44, 2, 47, 2))
sketch6.addConstraint(Sketcher.Constraint("Vertical", 42, 2, 49, 2))
sketch6.addConstraint(Sketcher.Constraint("Vertical", 35, 2, 52, 2))
sketch6.addConstraint(Sketcher.Constraint("Vertical", 21, 2, 53, 2))
sketch6.addConstraint(Sketcher.Constraint("Vertical", 52, 2, 55, 2))
sketch6.addConstraint(Sketcher.Constraint("Vertical", 33, 2, 57, 2))
sketch6.addConstraint(Sketcher.Constraint("Vertical", 31, 2, 59, 2))
sketch6.addConstraint(Sketcher.Constraint("Vertical", 29, 2, 61, 2))
sketch6.addConstraint(Sketcher.Constraint("Vertical", 60, 2, 63, 2))
sketch6.addConstraint(Sketcher.Constraint("Vertical", 58, 2, 65, 2))
sketch6.addConstraint(Sketcher.Constraint("Equal", 8, 12))
sketch6.addConstraint(Sketcher.Constraint("Equal", 6, 20))
sketch6.addConstraint(Sketcher.Constraint("Equal", 18, 24))
sketch6.addConstraint(Sketcher.Constraint("Equal", 16, 26))
sketch6.addConstraint(Sketcher.Constraint("Equal", 24, 28))
sketch6.addConstraint(Sketcher.Constraint("Equal", 11, 15))
sketch6.addConstraint(Sketcher.Constraint("Equal", 7, 19))
sketch6.addConstraint(Sketcher.Constraint("Equal", 5, 21))
sketch6.addConstraint(Sketcher.Constraint("Equal", 19, 23))
sketch6.addConstraint(Sketcher.Constraint("Equal", 17, 25))
sketch6.addConstraint(Sketcher.Constraint("Equal", 13, 29))
sketch6.addConstraint(Sketcher.Constraint("Equal", 27, 31))
sketch6.addConstraint(Sketcher.Constraint("Diameter", 0, Q("0.125 in")))
sketch6.addConstraint(Sketcher.Constraint("DistanceY", 5, 2, 5, 1, Q("0.5 in")))
sketch6.addConstraint(Sketcher.Constraint("DistanceX", 4, 1, 4, 2, Q("0.25 in")))
sketch6.addConstraint(Sketcher.Constraint("DistanceY", -1, 1, 1, 3, Q("1.5 in")))
sketch6.addConstraint(Sketcher.Constraint("DistanceX", -1, 1, 2, 3, Q("1.2 in")))
sketch6.addConstraint(Sketcher.Constraint("DistanceX", 6, 2, -1, 1, Q("0.8 in")))
sketch6.addConstraint(Sketcher.Constraint("DistanceX", 10, 2, 10, 1, Q("0.109375 in")))
sketch6.addConstraint(Sketcher.Constraint("DistanceY", 9, 2, -1, 1, Q("0.75 in")))
sketch6.addConstraint(Sketcher.Constraint("DistanceX", -1, 1, 28, 2, Q("1.71 in")))
sketch6.addConstraint(Sketcher.Constraint("DistanceY", 9, 2, 9, 1, Q("0.0815 in")))
sketch6.addConstraint(Sketcher.Constraint("DistanceY", 13, 1, 13, 2, Q("0.1495 in")))
sketch6.addConstraint(Sketcher.Constraint("DistanceX", 0, 3, -1, 1, Q("0.675 in")))
sketch6.addConstraint(Sketcher.Constraint("DistanceY", 0, 3, -1, 1, Q("1.125 in")))
sketch6.addConstraint(Sketcher.Constraint("DistanceX", 12, 2, -1, 1, Q("1.185 in")))
sketch6.addConstraint(Sketcher.Constraint("DistanceY", -1, 1, 20, 2, Q("0.71875 in")))
pocket3 = doc.addObject("PartDesign::Pocket", "Pocket002")
body.addObject(pocket3)
pocket3.Profile = sketch6
pocket3.Length = Q("0.25 in")
pocket3.Reversed = True

doc.recompute()
